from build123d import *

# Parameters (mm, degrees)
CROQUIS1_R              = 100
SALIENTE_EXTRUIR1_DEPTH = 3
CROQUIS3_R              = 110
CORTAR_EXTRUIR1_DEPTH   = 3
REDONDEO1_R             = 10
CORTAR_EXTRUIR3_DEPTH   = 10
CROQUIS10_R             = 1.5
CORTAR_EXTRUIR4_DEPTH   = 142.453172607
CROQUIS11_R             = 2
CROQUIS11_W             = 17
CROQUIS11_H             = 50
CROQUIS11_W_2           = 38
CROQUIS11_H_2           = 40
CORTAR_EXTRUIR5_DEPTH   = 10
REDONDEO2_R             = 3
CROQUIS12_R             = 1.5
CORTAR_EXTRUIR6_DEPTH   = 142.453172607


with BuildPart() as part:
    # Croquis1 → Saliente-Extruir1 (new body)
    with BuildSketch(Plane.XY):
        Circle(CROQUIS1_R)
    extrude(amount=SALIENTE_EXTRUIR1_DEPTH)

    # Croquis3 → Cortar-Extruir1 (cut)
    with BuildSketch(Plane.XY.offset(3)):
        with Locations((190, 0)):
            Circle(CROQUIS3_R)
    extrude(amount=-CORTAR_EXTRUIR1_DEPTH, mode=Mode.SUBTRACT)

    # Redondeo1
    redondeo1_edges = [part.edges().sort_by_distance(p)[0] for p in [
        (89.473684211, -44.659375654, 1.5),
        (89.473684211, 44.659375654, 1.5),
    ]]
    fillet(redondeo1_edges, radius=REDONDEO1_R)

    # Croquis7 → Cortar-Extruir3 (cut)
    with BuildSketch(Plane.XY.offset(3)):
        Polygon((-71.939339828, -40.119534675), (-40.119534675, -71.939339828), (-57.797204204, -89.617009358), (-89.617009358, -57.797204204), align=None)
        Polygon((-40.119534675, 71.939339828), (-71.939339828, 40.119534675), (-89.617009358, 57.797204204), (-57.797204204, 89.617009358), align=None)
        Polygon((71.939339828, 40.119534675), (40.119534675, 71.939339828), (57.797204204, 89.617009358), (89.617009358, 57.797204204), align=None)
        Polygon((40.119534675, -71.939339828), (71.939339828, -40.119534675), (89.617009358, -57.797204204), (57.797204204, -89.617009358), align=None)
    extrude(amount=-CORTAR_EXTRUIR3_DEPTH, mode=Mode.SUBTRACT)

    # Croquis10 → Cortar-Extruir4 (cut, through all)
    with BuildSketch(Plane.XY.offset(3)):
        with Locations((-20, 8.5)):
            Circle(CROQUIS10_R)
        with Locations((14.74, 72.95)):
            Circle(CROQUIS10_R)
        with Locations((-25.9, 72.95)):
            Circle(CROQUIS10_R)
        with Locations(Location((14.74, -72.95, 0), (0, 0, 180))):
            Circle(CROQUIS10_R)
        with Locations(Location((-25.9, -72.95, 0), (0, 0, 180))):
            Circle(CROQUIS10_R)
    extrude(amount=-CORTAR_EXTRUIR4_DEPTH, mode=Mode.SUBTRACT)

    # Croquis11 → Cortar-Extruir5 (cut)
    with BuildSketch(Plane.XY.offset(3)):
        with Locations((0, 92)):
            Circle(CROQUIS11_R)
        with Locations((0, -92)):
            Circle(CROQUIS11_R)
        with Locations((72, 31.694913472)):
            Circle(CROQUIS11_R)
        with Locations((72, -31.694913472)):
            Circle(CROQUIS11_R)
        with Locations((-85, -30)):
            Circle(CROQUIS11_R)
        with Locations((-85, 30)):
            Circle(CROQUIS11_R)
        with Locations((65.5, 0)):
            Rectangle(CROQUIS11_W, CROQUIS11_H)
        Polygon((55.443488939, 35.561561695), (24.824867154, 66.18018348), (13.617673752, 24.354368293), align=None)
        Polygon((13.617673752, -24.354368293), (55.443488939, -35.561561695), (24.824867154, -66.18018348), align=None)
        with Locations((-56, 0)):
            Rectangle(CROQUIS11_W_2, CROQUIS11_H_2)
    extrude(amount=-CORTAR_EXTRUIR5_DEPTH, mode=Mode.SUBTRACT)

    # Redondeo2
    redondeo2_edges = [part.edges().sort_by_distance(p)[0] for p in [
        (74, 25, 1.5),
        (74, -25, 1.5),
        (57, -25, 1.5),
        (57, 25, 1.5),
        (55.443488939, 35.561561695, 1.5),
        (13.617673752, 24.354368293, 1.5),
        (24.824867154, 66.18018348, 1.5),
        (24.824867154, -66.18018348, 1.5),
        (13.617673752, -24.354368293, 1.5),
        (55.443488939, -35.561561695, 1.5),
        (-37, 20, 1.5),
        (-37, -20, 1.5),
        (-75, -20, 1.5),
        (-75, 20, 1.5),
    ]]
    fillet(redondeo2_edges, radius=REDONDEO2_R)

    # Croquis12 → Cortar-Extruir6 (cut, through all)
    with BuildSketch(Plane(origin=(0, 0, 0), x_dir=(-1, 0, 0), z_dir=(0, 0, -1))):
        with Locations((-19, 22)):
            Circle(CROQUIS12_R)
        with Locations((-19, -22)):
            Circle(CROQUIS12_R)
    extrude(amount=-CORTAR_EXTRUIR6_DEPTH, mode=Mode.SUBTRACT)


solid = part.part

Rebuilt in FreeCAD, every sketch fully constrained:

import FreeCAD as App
import Part
import Sketcher

V = App.Vector


def edges_at(feature, points):
    """Names of the edges that pass closest to the given points."""
    edges = feature.Shape.Edges
    near = lambda p: min(range(len(edges)), key=lambda i: edges[i].distToShape(Part.Vertex(*p))[0])
    return sorted({f"Edge{near(p) + 1}" for p in points})


def add_polygon(sketch, points):
    """Adds a closed chain of lines whose ends are joined by coincident constraints."""
    first, n = sketch.GeometryCount, len(points)
    for a, b in zip(points, points[1:] + points[:1]):
        sketch.addGeometry(Part.LineSegment(App.Vector(*a, 0), App.Vector(*b, 0)), False)
    for i in range(n):
        sketch.addConstraint(Sketcher.Constraint("Coincident", first + i, 2, first + (i + 1) % n, 1))

doc = App.newDocument("Part")
params = doc.addObject("Spreadsheet::Sheet", "Params")
for row, (alias, value) in enumerate([
    ("sketch1_diameter", "200 mm"),
    ("pad1_length", "3 mm"),
    ("sketch2_diameter", "220 mm"),
    ("pocket1_length", "3 mm"),
    ("fillet_radius", "10 mm"),
    ("sketch3_length", "45 mm"),
    ("sketch3_length2", "25 mm"),
    ("pocket2_length", "10 mm"),
    ("sketch4_diameter", "3 mm"),
    ("sketch5_diameter", "4 mm"),
    ("sketch5_width", "17 mm"),
    ("sketch5_width2", "38 mm"),
    ("sketch5_height", "50 mm"),
    ("sketch5_height2", "40 mm"),
    ("pocket4_length", "10 mm"),
    ("fillet2_radius", "3 mm"),
    ("sketch6_diameter", "3 mm"),
], start=1):
    params.set(f"A{row}", alias)
    params.set(f"B{row}", "=" + value)
    params.setAlias(f"B{row}", alias)

body = doc.addObject("PartDesign::Body", "Body")

# Sketch on XY plane
sketch1 = doc.addObject("Sketcher::SketchObject", "Sketch")
body.addObject(sketch1)
sketch1.AttachmentSupport = (doc.XY_Plane, [""])
sketch1.MapMode = "FlatFace"
sketch1.addGeometry(Part.Circle(V(0, 0, 0), V(0, 0, 1), 100), False)
sketch1.addConstraint(Sketcher.Constraint("Coincident", 0, 3, -1, 1))
sketch1.addConstraint(Sketcher.Constraint("Diameter", 0, 200.0))
sketch1.setExpression("Constraints[1]", "Params.sketch1_diameter")
pad1 = doc.addObject("PartDesign::Pad", "Pad")
body.addObject(pad1)
pad1.Profile = sketch1
pad1.setExpression("Length", "Params.pad1_length")

# Sketch on XY plane
sketch2 = doc.addObject("Sketcher::SketchObject", "Sketch001")
body.addObject(sketch2)
sketch2.AttachmentSupport = (doc.XY_Plane, [""])
sketch2.MapMode = "FlatFace"
sketch2.AttachmentOffset = App.Placement(V(0, 0, 3), App.Rotation())
sketch2.addGeometry(Part.Circle(V(190, 0, 0), V(0, 0, 1), 110), False)
sketch2.addConstraint(Sketcher.Constraint("PointOnObject", 0, 3, -1))
sketch2.addConstraint(Sketcher.Constraint("Diameter", 0, 220.0))
sketch2.addConstraint(Sketcher.Constraint("DistanceX", -1, 1, 0, 3, 190.0))
sketch2.setExpression("Constraints[1]", "Params.sketch2_diameter")
pocket1 = doc.addObject("PartDesign::Pocket", "Pocket")
body.addObject(pocket1)
pocket1.Profile = sketch2
pocket1.setExpression("Length", "Params.pocket1_length")
doc.recompute()

fillet = doc.addObject("PartDesign::Fillet", "Fillet")
body.addObject(fillet)
fillet.Base = (pocket1, edges_at(pocket1, [(89.474, -44.659, 1.5), (89.474, 44.659, 1.5)]))
fillet.setExpression("Radius", "Params.fillet_radius")

# Sketch on XY plane
sketch3 = doc.addObject("Sketcher::SketchObject", "Sketch002")
body.addObject(sketch3)
sketch3.AttachmentSupport = (doc.XY_Plane, [""])
sketch3.MapMode = "FlatFace"
sketch3.AttachmentOffset = App.Placement(V(0, 0, 3), App.Rotation())
add_polygon(sketch3, [(-40, -72), (-72, -40), (-90, -58), (-58, -90)])  # lines 0-3
add_polygon(sketch3, [(-72, 40), (-40, 72), (-58, 90), (-90, 58)])  # lines 4-7
add_polygon(sketch3, [(40, 72), (72, 40), (90, 58), (58, 90)])  # lines 8-11
add_polygon(sketch3, [(72, -40), (40, -72), (58, -90), (90, -58)])  # lines 12-15
sketch3.addConstraint(Sketcher.Constraint("Symmetric", 0, 2, 8, 2, -1, 1))
sketch3.addConstraint(Sketcher.Constraint("Symmetric", 1, 2, 9, 2, -1, 1))
sketch3.addConstraint(Sketcher.Constraint("Symmetric", 2, 2, 10, 2, -1, 1))
sketch3.addConstraint(Sketcher.Constraint("Symmetric", 3, 2, 11, 2, -1, 1))
sketch3.addConstraint(Sketcher.Constraint("Symmetric", 4, 2, 12, 2, -1, 1))
sketch3.addConstraint(Sketcher.Constraint("Symmetric", 5, 2, 13, 2, -1, 1))
sketch3.addConstraint(Sketcher.Constraint("Symmetric", 6, 2, 14, 2, -1, 1))
sketch3.addConstraint(Sketcher.Constraint("Symmetric", 7, 2, 15, 2, -1, 1))
sketch3.addConstraint(Sketcher.Constraint("Symmetric", 7, 2, 8, 2, -2))
sketch3.addConstraint(Sketcher.Constraint("Symmetric", 6, 2, 9, 2, -2))
sketch3.addConstraint(Sketcher.Constraint("Symmetric", 5, 2, 10, 2, -2))
sketch3.addConstraint(Sketcher.Constraint("Symmetric", 4, 2, 11, 2, -2))
sketch3.addConstraint(Sketcher.Constraint("Perpendicular", 0, 1))
sketch3.addConstraint(Sketcher.Constraint("Perpendicular", 1, 2))
sketch3.addConstraint(Sketcher.Constraint("Perpendicular", 2, 3))
sketch3.addConstraint(Sketcher.Constraint("Parallel", 3, 4))
sketch3.addConstraint(Sketcher.Constraint("Distance", 0, 45.0))
sketch3.addConstraint(Sketcher.Constraint("Distance", 1, 25.0))
sketch3.addConstraint(Sketcher.Constraint("DistanceX", 0, 2, -1, 1, 71.93934))
sketch3.addConstraint(Sketcher.Constraint("DistanceY", 2, 2, -1, 1, 89.617009))
sketch3.setExpression("Constraints[32]", "Params.sketch3_length")
sketch3.setExpression("Constraints[33]", "Params.sketch3_length2")
pocket2 = doc.addObject("PartDesign::Pocket", "Pocket001")
body.addObject(pocket2)
pocket2.Profile = sketch3
pocket2.setExpression("Length", "Params.pocket2_length")

# Sketch on XY plane
sketch4 = doc.addObject("Sketcher::SketchObject", "Sketch003")
body.addObject(sketch4)
sketch4.AttachmentSupport = (doc.XY_Plane, [""])
sketch4.MapMode = "FlatFace"
sketch4.AttachmentOffset = App.Placement(V(0, 0, 3), App.Rotation())
sketch4.addGeometry(Part.Circle(V(-20, 8.5, 0), V(0, 0, 1), 1.5), False)
sketch4.addGeometry(Part.Circle(V(14.7, 73, 0), V(0, 0, 1), 1.5), False)
sketch4.addGeometry(Part.Circle(V(-25.9, 73, 0), V(0, 0, 1), 1.5), False)
sketch4.addGeometry(Part.Circle(V(14.7, -73, 0), V(0, 0, 1), 1.5), False)
sketch4.addGeometry(Part.Circle(V(-25.9, -73, 0), V(0, 0, 1), 1.5), False)
sketch4.addConstraint(Sketcher.Constraint("Equal", 0, 1))
sketch4.addConstraint(Sketcher.Constraint("Equal", 1, 2))
sketch4.addConstraint(Sketcher.Constraint("Equal", 2, 3))
sketch4.addConstraint(Sketcher.Constraint("Equal", 3, 4))
sketch4.addConstraint(Sketcher.Constraint("Symmetric", 1, 3, 3, 3, -1))
sketch4.addConstraint(Sketcher.Constraint("Symmetric", 2, 3, 4, 3, -1))
sketch4.addConstraint(Sketcher.Constraint("Horizontal", 1, 3, 2, 3))
sketch4.addConstraint(Sketcher.Constraint("Diameter", 0, 3.0))
sketch4.addConstraint(Sketcher.Constraint("DistanceX", 0, 3, -1, 1, 20.0))
sketch4.addConstraint(Sketcher.Constraint("DistanceY", -1, 1, 0, 3, 8.5))
sketch4.addConstraint(Sketcher.Constraint("DistanceX", 2, 3, -1, 1, 25.9))
sketch4.addConstraint(Sketcher.Constraint("DistanceY", 3, 3, 1, 3, 145.9))
sketch4.addConstraint(Sketcher.Constraint("DistanceX", -1, 1, 1, 3, 14.74))
sketch4.setExpression("Constraints[7]", "Params.sketch4_diameter")
pocket3 = doc.addObject("PartDesign::Pocket", "Pocket002")
body.addObject(pocket3)
pocket3.Profile = sketch4
pocket3.Type = "ThroughAll"

# Sketch on XY plane
sketch5 = doc.addObject("Sketcher::SketchObject", "Sketch004")
body.addObject(sketch5)
sketch5.AttachmentSupport = (doc.XY_Plane, [""])
sketch5.MapMode = "FlatFace"
sketch5.AttachmentOffset = App.Placement(V(0, 0, 3), App.Rotation())
sketch5.addGeometry(Part.Circle(V(0, 92, 0), V(0, 0, 1), 2), False)  # 0
sketch5.addGeometry(Part.Circle(V(0, -92, 0), V(0, 0, 1), 2), False)  # 1
sketch5.addGeometry(Part.Circle(V(72, 31.7, 0), V(0, 0, 1), 2), False)  # 2
sketch5.addGeometry(Part.Circle(V(72, -31.7, 0), V(0, 0, 1), 2), False)  # 3
sketch5.addGeometry(Part.Circle(V(-85, -30, 0), V(0, 0, 1), 2), False)  # 4
sketch5.addGeometry(Part.Circle(V(-85, 30, 0), V(0, 0, 1), 2), False)  # 5
add_polygon(sketch5, [(57, 25), (57, -25), (74, -25), (74, 25)])  # lines 6-9
add_polygon(sketch5, [(55.4, 35.6), (24.8, 66.2), (13.6, 24.4)])  # lines 10-12
add_polygon(sketch5, [(55.4, -35.6), (13.6, -24.4), (24.8, -66.2)])  # lines 13-15
add_polygon(sketch5, [(-75, 20), (-75, -20), (-37, -20), (-37, 20)])  # lines 16-19
sketch5.addConstraint(Sketcher.Constraint("Vertical", 6))
sketch5.addConstraint(Sketcher.Constraint("Horizontal", 7))
sketch5.addConstraint(Sketcher.Constraint("Vertical", 8))
sketch5.addConstraint(Sketcher.Constraint("Horizontal", 9))
sketch5.addConstraint(Sketcher.Constraint("Vertical", 16))
sketch5.addConstraint(Sketcher.Constraint("Horizontal", 17))
sketch5.addConstraint(Sketcher.Constraint("Vertical", 18))
sketch5.addConstraint(Sketcher.Constraint("Horizontal", 19))
sketch5.addConstraint(Sketcher.Constraint("Equal", 0, 1))
sketch5.addConstraint(Sketcher.Constraint("Equal", 1, 2))
sketch5.addConstraint(Sketcher.Constraint("Equal", 2, 3))
sketch5.addConstraint(Sketcher.Constraint("Equal", 3, 4))
sketch5.addConstraint(Sketcher.Constraint("Equal", 4, 5))
sketch5.addConstraint(Sketcher.Constraint("Symmetric", 0, 3, 1, 3, -1, 1))
sketch5.addConstraint(Sketcher.Constraint("Symmetric", 2, 3, 3, 3, -1))
sketch5.addConstraint(Sketcher.Constraint("Symmetric", 4, 3, 5, 3, -1))
sketch5.addConstraint(Sketcher.Constraint("Symmetric", 11, 2, 13, 2, -1))
sketch5.addConstraint(Sketcher.Constraint("Symmetric", 10, 2, 14, 2, -1))
sketch5.addConstraint(Sketcher.Constraint("Symmetric", 12, 2, 15, 2, -1))
sketch5.addConstraint(Sketcher.Constraint("PointOnObject", 0, 3, -2))
sketch5.addConstraint(Sketcher.Constraint("Perpendicular", 11, 13))
sketch5.addConstraint(Sketcher.Constraint("Perpendicular", 10, 15))
sketch5.addConstraint(Sketcher.Constraint("Equal", 10, 11))
sketch5.addConstraint(Sketcher.Constraint("Diameter", 0, 4.0))
sketch5.addConstraint(Sketcher.Constraint("DistanceX", 7, 1, 7, 2, 17.0))
sketch5.addConstraint(Sketcher.Constraint("DistanceX", 17, 1, 17, 2, 38.0))
sketch5.addConstraint(Sketcher.Constraint("DistanceY", 6, 2, 6, 1, 50.0))
sketch5.addConstraint(Sketcher.Constraint("DistanceY", 16, 2, 16, 1, 40.0))
sketch5.addConstraint(Sketcher.Constraint("DistanceY", -1, 1, 0, 3, 92.0))
sketch5.addConstraint(Sketcher.Constraint("DistanceX", -1, 1, 2, 3, 72.0))
sketch5.addConstraint(Sketcher.Constraint("DistanceX", 4, 3, -1, 1, 85.0))
sketch5.addConstraint(Sketcher.Constraint("DistanceY", 4, 3, -1, 1, 30.0))
sketch5.addConstraint(Sketcher.Constraint("DistanceX", -1, 1, 6, 2, 57.0))
sketch5.addConstraint(Sketcher.Constraint("DistanceY", 6, 2, -1, 1, 25.0))
sketch5.addConstraint(Sketcher.Constraint("DistanceX", 16, 2, -1, 1, 75.0))
sketch5.addConstraint(Sketcher.Constraint("DistanceY", 16, 2, -1, 1, 20.0))
sketch5.addConstraint(Sketcher.Constraint("Distance", 10, 43.30127))
sketch5.addConstraint(Sketcher.Constraint("DistanceY", -1, 1, 11, 2, 24.354368))
sketch5.addConstraint(Sketcher.Constraint("DistanceX", -1, 1, 12, 2, 55.443489))
sketch5.addConstraint(Sketcher.Constraint("DistanceY", 2, 3, 10, 2, 34.48527))
sketch5.setExpression("Constraints[37]", "Params.sketch5_diameter")
sketch5.setExpression("Constraints[38]", "Params.sketch5_width")
sketch5.setExpression("Constraints[39]", "Params.sketch5_width2")
sketch5.setExpression("Constraints[40]", "Params.sketch5_height")
sketch5.setExpression("Constraints[41]", "Params.sketch5_height2")
pocket4 = doc.addObject("PartDesign::Pocket", "Pocket003")
body.addObject(pocket4)
pocket4.Profile = sketch5
pocket4.setExpression("Length", "Params.pocket4_length")
doc.recompute()

fillet2 = doc.addObject("PartDesign::Fillet", "Fillet001")
body.addObject(fillet2)
fillet2.Base = (pocket4, edges_at(pocket4, [
    (74, 25, 1.5),
    (74, -25, 1.5),
    (57, -25, 1.5),
    (57, 25, 1.5),
    (55.443, 35.562, 1.5),
    (13.618, 24.354, 1.5),
    (24.825, 66.18, 1.5),
    (24.825, -66.18, 1.5),
    (13.618, -24.354, 1.5),
    (55.443, -35.562, 1.5),
    (-37, 20, 1.5),
    (-37, -20, 1.5),
    (-75, -20, 1.5),
    (-75, 20, 1.5),
]))
fillet2.setExpression("Radius", "Params.fillet2_radius")

# Sketch on XY plane
sketch6 = doc.addObject("Sketcher::SketchObject", "Sketch005")
body.addObject(sketch6)
sketch6.AttachmentSupport = (doc.XY_Plane, [""])
sketch6.MapMode = "FlatFace"
sketch6.addGeometry(Part.Circle(V(19, 22, 0), V(0, 0, 1), 1.5), False)
sketch6.addGeometry(Part.Circle(V(19, -22, 0), V(0, 0, 1), 1.5), False)
sketch6.addConstraint(Sketcher.Constraint("Equal", 0, 1))
sketch6.addConstraint(Sketcher.Constraint("Symmetric", 0, 3, 1, 3, -1))
sketch6.addConstraint(Sketcher.Constraint("Diameter", 0, 3.0))
sketch6.addConstraint(Sketcher.Constraint("DistanceX", -1, 1, 0, 3, 19.0))
sketch6.addConstraint(Sketcher.Constraint("DistanceY", -1, 1, 0, 3, 22.0))
sketch6.setExpression("Constraints[2]", "Params.sketch6_diameter")
pocket5 = doc.addObject("PartDesign::Pocket", "Pocket004")
body.addObject(pocket5)
pocket5.Profile = sketch6
pocket5.Type = "ThroughAll"
pocket5.Reversed = True

doc.recompute()
